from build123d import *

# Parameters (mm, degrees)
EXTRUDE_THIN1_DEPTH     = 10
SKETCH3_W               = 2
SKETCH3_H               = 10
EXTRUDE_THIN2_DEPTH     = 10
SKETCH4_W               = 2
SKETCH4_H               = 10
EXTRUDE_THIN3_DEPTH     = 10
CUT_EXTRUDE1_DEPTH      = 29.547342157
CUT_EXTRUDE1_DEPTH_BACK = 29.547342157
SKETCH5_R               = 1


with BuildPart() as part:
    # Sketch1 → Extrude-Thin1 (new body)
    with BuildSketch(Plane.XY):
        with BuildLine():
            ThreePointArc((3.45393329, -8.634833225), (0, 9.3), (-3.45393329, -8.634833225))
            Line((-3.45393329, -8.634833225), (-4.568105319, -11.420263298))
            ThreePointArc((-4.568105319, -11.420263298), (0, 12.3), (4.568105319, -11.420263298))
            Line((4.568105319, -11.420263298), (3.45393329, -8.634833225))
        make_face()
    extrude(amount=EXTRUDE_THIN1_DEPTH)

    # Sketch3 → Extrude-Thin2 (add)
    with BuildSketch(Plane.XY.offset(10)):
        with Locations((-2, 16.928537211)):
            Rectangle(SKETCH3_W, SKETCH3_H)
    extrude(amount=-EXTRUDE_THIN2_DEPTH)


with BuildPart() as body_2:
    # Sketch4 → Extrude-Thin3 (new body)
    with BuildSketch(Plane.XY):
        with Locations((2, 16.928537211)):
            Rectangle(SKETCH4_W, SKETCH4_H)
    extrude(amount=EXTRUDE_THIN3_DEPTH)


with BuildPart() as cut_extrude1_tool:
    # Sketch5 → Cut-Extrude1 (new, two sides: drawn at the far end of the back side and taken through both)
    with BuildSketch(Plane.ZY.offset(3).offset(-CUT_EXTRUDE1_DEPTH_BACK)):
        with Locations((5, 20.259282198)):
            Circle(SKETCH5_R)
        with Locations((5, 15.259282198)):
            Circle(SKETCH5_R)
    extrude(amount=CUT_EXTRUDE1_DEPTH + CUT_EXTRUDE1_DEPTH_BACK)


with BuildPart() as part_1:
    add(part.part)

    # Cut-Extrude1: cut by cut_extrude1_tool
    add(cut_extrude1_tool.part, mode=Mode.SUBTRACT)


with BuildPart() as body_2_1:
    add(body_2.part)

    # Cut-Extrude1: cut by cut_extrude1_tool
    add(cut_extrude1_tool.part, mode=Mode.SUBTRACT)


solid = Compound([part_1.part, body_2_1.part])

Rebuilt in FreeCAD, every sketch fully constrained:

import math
import FreeCAD as App
import Part
import Sketcher

doc = App.newDocument("Part")
body = doc.addObject("PartDesign::Body", "Body")

sketch1 = body.newObject("Sketcher::SketchObject", "Sketch")
sketch1.AttachmentSupport = (doc.getObject("XY_Plane"), [""])
sketch1.MapMode = "FlatFace"
sketch1.addGeometry([
    Part.ArcOfCircle(Part.Circle(App.Vector(0, 0, 0), App.Vector(0, 0, 1), 9.3), math.radians(-68), math.radians(248)),
    Part.LineSegment(App.Vector(3.5, -8.6, 0), App.Vector(4.6, -11.4, 0)),
    Part.ArcOfCircle(Part.Circle(App.Vector(0, 0, 0), App.Vector(0, 0, 1), 12.3), math.radians(-68), math.radians(248)),
    Part.LineSegment(App.Vector(-4.6, -11.4, 0), App.Vector(-3.5, -8.6, 0)),
], False)
sketch1.addConstraint([
    Sketcher.Constraint("Coincident", 0, 1, 1, 1),
    Sketcher.Constraint("Coincident", 1, 2, 2, 1),
    Sketcher.Constraint("Coincident", 2, 2, 3, 1),
    Sketcher.Constraint("Coincident", 3, 2, 0, 2),
    Sketcher.Constraint("Coincident", 0, 3, -1, 1),
    Sketcher.Constraint("Coincident", 2, 3, -1, 1),
    Sketcher.Constraint("Horizontal", 1, 2, 2, 2),
    Sketcher.Constraint("Horizontal", 0, 1, 3, 2),
    Sketcher.Constraint("Radius", 0, 9.3),
    Sketcher.Constraint("Radius", 2, 12.3),
    Sketcher.Constraint("DistanceY", 1, 2, 0, 1, 2.78543),
    Sketcher.Constraint("DistanceX", 2, 2, 0, 1, 8.022039),
])
pad1 = body.newObject("PartDesign::Pad", "Pad")
pad1.Profile = sketch1
pad1.Length = 10

sketch2 = body.newObject("Sketcher::SketchObject", "Sketch001")
sketch2.AttachmentSupport = (doc.getObject("XY_Plane"), [""])
sketch2.MapMode = "FlatFace"
sketch2.AttachmentOffset = App.Placement(App.Vector(0, 0, 10), App.Rotation())
sketch2.addGeometry([
    Part.LineSegment(App.Vector(-3, 21.9, 0), App.Vector(-3, 11.9, 0)),
    Part.LineSegment(App.Vector(-3, 11.9, 0), App.Vector(-1, 11.9, 0)),
    Part.LineSegment(App.Vector(-1, 11.9, 0), App.Vector(-1, 21.9, 0)),
    Part.LineSegment(App.Vector(-1, 21.9, 0), App.Vector(-3, 21.9, 0)),
], False)
sketch2.addConstraint([
    Sketcher.Constraint("Coincident", 0, 2, 1, 1),
    Sketcher.Constraint("Coincident", 1, 2, 2, 1),
    Sketcher.Constraint("Coincident", 2, 2, 3, 1),
    Sketcher.Constraint("Coincident", 3, 2, 0, 1),
    Sketcher.Constraint("Vertical", 0),
    Sketcher.Constraint("Horizontal", 1),
    Sketcher.Constraint("Vertical", 2),
    Sketcher.Constraint("Horizontal", 3),
    Sketcher.Constraint("DistanceX", 1, 1, 1, 2, 2.0),
    Sketcher.Constraint("DistanceY", 0, 2, 0, 1, 10.0),
    Sketcher.Constraint("DistanceX", 0, 2, -1, 1, 3.0),
    Sketcher.Constraint("DistanceY", -1, 1, 0, 2, 11.928537),
])
pad2 = body.newObject("PartDesign::Pad", "Pad001")
pad2.Profile = sketch2
pad2.Length = 10
pad2.Reversed = True
body2 = doc.addObject("PartDesign::Body", "Body001")

sketch3 = body2.newObject("Sketcher::SketchObject", "Sketch002")
sketch3.AttachmentSupport = (doc.getObject("XY_Plane001"), [""])
sketch3.MapMode = "FlatFace"
sketch3.addGeometry([
    Part.LineSegment(App.Vector(1, 21.9, 0), App.Vector(1, 11.9, 0)),
    Part.LineSegment(App.Vector(1, 11.9, 0), App.Vector(3, 11.9, 0)),
    Part.LineSegment(App.Vector(3, 11.9, 0), App.Vector(3, 21.9, 0)),
    Part.LineSegment(App.Vector(3, 21.9, 0), App.Vector(1, 21.9, 0)),
], False)
sketch3.addConstraint([
    Sketcher.Constraint("Coincident", 0, 2, 1, 1),
    Sketcher.Constraint("Coincident", 1, 2, 2, 1),
    Sketcher.Constraint("Coincident", 2, 2, 3, 1),
    Sketcher.Constraint("Coincident", 3, 2, 0, 1),
    Sketcher.Constraint("Vertical", 0),
    Sketcher.Constraint("Horizontal", 1),
    Sketcher.Constraint("Vertical", 2),
    Sketcher.Constraint("Horizontal", 3),
    Sketcher.Constraint("DistanceX", 1, 1, 1, 2, 2.0),
    Sketcher.Constraint("DistanceY", 0, 2, 0, 1, 10.0),
    Sketcher.Constraint("DistanceX", -1, 1, 0, 2, 1.0),
    Sketcher.Constraint("DistanceY", -1, 1, 0, 2, 11.928537),
])
pad3 = body2.newObject("PartDesign::Pad", "Pad002")
pad3.Profile = sketch3
pad3.Length = 10
body3 = doc.addObject("PartDesign::Body", "Body002")
body3.AllowCompound = True

sketch4 = body3.newObject("Sketcher::SketchObject", "Sketch003")
sketch4.AttachmentSupport = (doc.getObject("YZ_Plane002"), [""])
sketch4.MapMode = "FlatFace"
sketch4.AttachmentOffset = App.Placement(App.Vector(0, 0, -3), App.Rotation())
sketch4.addGeometry([
    Part.Circle(App.Vector(20.3, 5, 0), App.Vector(0, 0, 1), 1),
    Part.Circle(App.Vector(15.3, 5, 0), App.Vector(0, 0, 1), 1),
], False)
sketch4.addConstraint([
    Sketcher.Constraint("Equal", 0, 1),
    Sketcher.Constraint("Horizontal", 0, 3, 1, 3),
    Sketcher.Constraint("Diameter", 0, 2.0),
    Sketcher.Constraint("DistanceY", -1, 1, 0, 3, 5.0),
    Sketcher.Constraint("DistanceX", 1, 3, 0, 3, 5.0),
    Sketcher.Constraint("DistanceX", -1, 1, 0, 3, 20.259282),
])
pad4 = body3.newObject("PartDesign::Pad", "Pad003")
pad4.Profile = sketch4
pad4.Type = "TwoLengths"
pad4.Length = 29.547342
pad4.Length2 = 29.547342
pad4.Reversed = True
doc.recompute()

body4 = doc.addObject("PartDesign::Body", "Body003")
body4.BaseFeature = body3
boolean = body.newObject("PartDesign::Boolean", "Boolean")
boolean.Type = "Cut"
boolean.addObjects([body4])
doc.recompute()

boolean2 = body2.newObject("PartDesign::Boolean", "Boolean001")
boolean2.Type = "Cut"
boolean2.addObjects([body3])

doc.recompute()
